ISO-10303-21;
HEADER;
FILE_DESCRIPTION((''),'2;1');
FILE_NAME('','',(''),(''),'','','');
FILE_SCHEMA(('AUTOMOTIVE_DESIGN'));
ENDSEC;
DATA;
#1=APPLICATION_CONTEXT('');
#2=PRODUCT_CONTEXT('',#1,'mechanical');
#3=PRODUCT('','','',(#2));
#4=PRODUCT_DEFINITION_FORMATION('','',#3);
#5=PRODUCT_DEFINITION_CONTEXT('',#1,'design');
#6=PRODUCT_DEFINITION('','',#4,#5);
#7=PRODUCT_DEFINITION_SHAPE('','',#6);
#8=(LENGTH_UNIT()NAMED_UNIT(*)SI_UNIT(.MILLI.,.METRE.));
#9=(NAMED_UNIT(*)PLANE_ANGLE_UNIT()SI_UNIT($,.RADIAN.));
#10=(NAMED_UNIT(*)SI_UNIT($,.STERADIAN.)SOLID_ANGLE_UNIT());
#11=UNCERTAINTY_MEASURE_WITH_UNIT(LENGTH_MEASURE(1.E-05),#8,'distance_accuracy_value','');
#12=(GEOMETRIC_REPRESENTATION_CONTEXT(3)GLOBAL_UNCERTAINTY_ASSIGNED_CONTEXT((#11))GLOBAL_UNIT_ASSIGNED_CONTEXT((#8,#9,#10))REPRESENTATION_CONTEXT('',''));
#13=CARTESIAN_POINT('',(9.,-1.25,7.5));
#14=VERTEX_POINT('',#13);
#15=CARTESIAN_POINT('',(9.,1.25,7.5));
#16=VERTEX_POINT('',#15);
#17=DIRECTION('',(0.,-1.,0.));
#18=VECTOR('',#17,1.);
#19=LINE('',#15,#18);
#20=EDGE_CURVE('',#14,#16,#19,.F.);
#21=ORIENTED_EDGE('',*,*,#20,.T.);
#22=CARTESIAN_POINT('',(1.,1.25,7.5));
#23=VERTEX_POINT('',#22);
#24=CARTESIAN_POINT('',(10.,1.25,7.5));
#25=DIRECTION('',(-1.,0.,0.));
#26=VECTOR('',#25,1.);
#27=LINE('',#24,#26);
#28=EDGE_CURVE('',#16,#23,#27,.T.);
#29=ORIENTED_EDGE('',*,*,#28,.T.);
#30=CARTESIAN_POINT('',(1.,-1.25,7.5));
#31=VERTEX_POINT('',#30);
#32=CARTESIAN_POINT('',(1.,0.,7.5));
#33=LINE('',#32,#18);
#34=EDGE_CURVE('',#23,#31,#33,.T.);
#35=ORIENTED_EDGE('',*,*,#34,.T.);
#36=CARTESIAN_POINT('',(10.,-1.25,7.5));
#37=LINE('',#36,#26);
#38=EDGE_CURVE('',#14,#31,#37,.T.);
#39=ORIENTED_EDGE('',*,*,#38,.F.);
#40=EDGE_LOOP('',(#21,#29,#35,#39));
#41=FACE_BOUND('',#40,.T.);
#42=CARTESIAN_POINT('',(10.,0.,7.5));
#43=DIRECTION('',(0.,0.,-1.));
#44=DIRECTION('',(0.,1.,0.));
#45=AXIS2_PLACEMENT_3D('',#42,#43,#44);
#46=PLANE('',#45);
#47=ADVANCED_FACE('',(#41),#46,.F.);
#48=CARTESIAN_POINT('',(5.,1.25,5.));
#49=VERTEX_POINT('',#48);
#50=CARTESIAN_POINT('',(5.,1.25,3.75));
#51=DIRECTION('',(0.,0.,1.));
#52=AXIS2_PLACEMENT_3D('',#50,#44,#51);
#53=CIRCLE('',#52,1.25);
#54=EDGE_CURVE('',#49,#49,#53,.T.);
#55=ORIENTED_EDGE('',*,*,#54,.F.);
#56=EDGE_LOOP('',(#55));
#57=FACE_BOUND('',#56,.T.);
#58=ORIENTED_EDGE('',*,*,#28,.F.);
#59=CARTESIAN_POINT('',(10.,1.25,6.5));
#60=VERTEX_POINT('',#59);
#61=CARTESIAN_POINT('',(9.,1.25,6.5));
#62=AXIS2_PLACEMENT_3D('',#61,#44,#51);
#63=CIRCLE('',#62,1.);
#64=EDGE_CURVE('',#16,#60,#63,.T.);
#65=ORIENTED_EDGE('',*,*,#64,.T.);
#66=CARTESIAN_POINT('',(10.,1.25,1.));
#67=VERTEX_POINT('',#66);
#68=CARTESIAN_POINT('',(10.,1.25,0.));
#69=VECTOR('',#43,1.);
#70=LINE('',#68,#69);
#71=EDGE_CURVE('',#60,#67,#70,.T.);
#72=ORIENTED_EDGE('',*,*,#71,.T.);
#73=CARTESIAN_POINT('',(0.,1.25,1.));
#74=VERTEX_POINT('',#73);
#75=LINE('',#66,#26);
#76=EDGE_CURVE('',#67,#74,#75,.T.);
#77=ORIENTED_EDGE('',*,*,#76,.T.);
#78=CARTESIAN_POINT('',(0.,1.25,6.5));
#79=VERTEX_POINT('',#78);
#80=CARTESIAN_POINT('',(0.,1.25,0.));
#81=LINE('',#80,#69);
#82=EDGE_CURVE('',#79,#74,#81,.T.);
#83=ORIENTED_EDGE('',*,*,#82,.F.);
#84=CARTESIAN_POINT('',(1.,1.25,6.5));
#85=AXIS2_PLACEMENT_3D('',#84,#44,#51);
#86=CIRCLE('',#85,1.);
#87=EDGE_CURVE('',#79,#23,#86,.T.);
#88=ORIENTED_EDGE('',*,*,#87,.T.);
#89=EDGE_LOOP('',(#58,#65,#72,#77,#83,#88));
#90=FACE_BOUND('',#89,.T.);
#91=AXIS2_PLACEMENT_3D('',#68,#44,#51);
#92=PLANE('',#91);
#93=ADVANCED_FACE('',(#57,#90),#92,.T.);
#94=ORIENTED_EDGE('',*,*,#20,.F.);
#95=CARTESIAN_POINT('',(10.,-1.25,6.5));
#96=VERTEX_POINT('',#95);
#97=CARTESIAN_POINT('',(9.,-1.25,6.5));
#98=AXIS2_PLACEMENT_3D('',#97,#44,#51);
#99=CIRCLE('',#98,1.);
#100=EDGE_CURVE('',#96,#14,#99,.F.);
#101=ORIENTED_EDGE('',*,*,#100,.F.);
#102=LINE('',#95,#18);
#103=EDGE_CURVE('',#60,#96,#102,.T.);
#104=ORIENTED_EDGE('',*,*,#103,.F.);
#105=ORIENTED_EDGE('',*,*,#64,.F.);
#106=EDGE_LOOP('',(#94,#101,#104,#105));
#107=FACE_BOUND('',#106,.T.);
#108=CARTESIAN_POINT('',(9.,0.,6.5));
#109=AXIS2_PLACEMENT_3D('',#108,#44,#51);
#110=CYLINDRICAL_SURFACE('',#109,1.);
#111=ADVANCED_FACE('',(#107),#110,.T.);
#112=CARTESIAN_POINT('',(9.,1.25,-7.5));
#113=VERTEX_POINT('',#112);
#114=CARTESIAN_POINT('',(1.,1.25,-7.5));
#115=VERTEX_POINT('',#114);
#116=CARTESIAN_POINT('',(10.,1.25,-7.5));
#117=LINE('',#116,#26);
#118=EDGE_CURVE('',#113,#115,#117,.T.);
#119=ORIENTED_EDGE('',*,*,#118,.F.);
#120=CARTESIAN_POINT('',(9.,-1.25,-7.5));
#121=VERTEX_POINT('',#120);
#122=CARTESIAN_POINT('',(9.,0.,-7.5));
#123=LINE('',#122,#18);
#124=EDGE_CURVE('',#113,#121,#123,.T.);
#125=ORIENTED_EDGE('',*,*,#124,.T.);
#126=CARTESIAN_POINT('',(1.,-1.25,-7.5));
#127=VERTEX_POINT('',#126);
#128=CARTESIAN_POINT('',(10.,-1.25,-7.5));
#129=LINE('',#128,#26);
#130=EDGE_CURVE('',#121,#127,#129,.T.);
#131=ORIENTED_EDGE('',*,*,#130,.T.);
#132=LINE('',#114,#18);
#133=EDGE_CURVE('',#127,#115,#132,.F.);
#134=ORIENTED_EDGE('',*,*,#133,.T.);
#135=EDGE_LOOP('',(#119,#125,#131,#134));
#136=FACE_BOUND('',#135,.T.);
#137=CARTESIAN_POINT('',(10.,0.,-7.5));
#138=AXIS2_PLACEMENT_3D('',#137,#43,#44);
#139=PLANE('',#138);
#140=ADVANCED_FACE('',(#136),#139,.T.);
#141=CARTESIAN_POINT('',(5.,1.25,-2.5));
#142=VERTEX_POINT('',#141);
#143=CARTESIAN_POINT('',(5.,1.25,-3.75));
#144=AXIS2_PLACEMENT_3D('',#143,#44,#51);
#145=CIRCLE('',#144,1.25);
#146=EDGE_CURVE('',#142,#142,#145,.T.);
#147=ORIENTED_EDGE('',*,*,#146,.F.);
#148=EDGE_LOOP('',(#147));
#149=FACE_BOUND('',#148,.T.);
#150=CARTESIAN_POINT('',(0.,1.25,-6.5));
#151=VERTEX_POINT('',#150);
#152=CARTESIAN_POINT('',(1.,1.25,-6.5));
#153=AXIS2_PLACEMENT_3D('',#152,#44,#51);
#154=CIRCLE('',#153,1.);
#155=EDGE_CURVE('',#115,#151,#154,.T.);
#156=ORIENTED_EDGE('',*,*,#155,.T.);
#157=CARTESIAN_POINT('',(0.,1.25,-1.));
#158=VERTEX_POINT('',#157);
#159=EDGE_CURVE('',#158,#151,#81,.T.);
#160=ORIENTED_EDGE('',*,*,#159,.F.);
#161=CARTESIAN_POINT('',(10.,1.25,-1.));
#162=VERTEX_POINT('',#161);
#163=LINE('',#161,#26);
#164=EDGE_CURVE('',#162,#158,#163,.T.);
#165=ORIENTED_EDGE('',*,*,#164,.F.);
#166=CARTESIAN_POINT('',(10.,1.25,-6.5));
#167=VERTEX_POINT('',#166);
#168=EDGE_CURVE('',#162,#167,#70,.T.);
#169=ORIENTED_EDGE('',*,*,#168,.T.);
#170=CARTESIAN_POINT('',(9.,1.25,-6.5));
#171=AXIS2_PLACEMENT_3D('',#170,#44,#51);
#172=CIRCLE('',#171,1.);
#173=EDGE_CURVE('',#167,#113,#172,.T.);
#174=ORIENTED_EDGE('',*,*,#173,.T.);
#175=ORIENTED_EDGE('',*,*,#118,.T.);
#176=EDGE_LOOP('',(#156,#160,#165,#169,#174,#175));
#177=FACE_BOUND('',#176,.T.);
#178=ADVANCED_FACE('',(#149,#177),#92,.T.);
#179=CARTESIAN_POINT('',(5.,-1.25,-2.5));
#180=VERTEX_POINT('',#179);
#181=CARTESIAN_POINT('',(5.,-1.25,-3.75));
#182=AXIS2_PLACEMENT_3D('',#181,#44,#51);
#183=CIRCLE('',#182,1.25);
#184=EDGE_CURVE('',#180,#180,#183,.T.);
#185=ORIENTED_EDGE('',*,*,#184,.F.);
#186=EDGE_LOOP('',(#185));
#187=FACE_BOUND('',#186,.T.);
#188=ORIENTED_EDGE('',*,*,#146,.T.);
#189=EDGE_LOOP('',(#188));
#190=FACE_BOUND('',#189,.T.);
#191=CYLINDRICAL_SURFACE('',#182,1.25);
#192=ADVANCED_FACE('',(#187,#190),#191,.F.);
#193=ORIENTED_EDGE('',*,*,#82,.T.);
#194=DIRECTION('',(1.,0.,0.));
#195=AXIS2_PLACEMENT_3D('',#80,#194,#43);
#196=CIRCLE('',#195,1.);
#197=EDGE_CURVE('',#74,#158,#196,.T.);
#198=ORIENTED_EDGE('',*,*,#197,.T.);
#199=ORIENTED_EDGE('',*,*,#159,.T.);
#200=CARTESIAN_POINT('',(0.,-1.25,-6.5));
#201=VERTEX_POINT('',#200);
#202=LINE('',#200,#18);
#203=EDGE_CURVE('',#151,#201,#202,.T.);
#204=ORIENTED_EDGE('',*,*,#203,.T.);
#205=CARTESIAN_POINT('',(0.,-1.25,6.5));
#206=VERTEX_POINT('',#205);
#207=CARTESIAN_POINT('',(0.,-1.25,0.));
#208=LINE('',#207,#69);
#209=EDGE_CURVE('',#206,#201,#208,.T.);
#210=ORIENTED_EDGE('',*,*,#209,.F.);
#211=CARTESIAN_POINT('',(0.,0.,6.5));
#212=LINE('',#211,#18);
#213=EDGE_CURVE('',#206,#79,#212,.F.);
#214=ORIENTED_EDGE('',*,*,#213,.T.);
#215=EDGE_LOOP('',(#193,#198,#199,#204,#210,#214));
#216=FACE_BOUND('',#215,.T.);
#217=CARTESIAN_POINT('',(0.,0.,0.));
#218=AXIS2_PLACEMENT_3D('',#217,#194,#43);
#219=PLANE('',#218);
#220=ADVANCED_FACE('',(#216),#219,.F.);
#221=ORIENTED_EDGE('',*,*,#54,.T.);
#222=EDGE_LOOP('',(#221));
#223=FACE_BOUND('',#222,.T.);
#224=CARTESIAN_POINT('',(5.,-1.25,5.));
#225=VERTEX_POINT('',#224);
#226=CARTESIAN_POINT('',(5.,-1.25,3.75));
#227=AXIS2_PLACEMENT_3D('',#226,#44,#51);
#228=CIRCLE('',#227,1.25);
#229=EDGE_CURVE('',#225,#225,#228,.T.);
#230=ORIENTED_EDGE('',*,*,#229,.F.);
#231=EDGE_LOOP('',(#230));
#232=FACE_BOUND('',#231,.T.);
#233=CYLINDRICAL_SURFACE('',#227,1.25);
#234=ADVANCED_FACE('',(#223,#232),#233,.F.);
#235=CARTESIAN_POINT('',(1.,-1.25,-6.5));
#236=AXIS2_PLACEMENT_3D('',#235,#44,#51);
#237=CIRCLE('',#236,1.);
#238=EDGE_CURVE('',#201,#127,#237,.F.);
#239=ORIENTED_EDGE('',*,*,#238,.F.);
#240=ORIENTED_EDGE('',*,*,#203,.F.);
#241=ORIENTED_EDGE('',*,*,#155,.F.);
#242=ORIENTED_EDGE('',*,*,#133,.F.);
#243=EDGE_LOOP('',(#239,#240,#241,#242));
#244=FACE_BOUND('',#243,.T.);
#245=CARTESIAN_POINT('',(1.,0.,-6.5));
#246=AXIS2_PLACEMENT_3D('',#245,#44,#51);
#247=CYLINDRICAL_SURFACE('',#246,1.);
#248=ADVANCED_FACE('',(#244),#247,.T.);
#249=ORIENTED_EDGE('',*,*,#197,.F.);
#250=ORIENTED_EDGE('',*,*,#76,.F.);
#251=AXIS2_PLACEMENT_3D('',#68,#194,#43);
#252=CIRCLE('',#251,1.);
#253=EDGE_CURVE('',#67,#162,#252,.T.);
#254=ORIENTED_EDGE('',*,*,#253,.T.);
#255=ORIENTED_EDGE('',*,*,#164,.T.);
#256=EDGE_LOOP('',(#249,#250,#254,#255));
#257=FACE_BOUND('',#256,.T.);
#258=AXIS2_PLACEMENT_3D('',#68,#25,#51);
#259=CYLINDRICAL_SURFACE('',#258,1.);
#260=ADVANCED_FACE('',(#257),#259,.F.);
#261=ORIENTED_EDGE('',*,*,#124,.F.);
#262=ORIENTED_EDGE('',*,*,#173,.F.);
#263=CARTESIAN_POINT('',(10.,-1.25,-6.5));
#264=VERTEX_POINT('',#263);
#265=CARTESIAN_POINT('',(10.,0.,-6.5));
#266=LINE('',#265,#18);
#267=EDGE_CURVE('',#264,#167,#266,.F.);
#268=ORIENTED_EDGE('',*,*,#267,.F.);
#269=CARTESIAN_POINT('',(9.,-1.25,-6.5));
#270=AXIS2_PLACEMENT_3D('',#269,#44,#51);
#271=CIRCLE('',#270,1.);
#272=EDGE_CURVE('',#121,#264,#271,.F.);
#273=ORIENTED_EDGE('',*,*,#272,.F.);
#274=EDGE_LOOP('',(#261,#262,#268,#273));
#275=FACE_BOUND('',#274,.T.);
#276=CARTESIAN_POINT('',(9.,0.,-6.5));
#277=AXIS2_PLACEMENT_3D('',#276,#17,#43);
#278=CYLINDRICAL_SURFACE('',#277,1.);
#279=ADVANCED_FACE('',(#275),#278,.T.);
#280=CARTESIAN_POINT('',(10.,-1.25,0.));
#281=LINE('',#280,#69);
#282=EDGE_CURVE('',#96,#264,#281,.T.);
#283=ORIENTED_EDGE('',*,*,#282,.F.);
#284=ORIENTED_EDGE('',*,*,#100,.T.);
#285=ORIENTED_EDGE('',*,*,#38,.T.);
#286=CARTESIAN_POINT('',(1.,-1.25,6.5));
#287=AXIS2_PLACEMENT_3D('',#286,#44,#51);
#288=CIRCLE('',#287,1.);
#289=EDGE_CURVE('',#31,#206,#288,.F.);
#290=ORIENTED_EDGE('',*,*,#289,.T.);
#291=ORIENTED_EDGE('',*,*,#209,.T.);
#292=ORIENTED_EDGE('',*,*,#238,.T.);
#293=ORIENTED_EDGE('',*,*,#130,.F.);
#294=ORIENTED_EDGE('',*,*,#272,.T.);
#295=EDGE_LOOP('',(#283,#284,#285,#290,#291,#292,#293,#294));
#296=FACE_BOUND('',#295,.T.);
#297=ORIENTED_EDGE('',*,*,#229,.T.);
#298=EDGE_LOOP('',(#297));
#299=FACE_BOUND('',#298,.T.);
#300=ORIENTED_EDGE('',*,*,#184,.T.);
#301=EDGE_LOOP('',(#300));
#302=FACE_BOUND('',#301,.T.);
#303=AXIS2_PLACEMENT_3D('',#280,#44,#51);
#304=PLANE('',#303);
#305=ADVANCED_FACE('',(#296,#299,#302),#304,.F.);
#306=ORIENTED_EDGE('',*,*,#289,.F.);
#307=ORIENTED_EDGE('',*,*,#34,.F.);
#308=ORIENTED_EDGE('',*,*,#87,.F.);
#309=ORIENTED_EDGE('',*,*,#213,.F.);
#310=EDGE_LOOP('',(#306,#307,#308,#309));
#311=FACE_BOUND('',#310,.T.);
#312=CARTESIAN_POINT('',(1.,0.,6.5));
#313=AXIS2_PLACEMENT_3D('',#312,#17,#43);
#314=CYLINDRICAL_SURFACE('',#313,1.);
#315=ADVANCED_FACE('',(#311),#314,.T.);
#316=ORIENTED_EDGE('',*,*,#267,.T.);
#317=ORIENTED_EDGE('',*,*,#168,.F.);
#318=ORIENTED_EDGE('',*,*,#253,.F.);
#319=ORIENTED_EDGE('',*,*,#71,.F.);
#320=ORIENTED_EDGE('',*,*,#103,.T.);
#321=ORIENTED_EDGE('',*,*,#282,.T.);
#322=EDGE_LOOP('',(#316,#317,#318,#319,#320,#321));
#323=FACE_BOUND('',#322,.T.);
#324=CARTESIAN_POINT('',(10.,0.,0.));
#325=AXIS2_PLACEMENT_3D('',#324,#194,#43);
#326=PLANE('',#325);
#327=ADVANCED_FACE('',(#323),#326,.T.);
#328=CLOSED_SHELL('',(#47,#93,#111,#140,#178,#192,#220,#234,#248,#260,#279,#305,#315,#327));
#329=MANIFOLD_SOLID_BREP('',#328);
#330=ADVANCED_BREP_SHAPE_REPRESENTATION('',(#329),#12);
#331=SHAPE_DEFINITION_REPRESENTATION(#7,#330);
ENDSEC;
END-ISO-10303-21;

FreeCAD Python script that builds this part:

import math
import FreeCAD as App
import Part
import Sketcher
from FreeCAD import Vector


def edges_at(feature, points):
    """Names of the edges that pass closest to the given points."""
    edges = feature.Shape.Edges
    near = lambda p: min(range(len(edges)), key=lambda i: edges[i].distToShape(Part.Vertex(*p))[0])
    return sorted({f"Edge{near(p) + 1}" for p in points})

doc = App.newDocument("Part")
body = doc.addObject("PartDesign::Body", "Body")

sketch1 = body.newObject("Sketcher::SketchObject", "Sketch")
sketch1.AttachmentSupport = (doc.getObject("YZ_Plane"), [""])
sketch1.MapMode = "FlatFace"
sketch1.addGeometry([
    Part.LineSegment(Vector(1.2, -7.5, 0), Vector(1.2, -1, 0)),
    Part.ArcOfCircle(Part.Circle(Vector(1.2, 0, 0), Vector(0, 0, 1), 1), math.radians(90), math.radians(270)),
    Part.LineSegment(Vector(1.2, 1, 0), Vector(1.2, 7.5, 0)),
    Part.LineSegment(Vector(1.2, 7.5, 0), Vector(-1.2, 7.5, 0)),
    Part.LineSegment(Vector(-1.2, 7.5, 0), Vector(-1.2, -7.5, 0)),
    Part.LineSegment(Vector(-1.2, -7.5, 0), Vector(1.2, -7.5, 0)),
], False)
sketch1.addConstraint([
    Sketcher.Constraint("Coincident", 0, 2, 1, 2),
    Sketcher.Constraint("Coincident", 1, 1, 2, 1),
    Sketcher.Constraint("Coincident", 2, 2, 3, 1),
    Sketcher.Constraint("Coincident", 3, 2, 4, 1),
    Sketcher.Constraint("Coincident", 4, 2, 5, 1),
    Sketcher.Constraint("Coincident", 5, 2, 0, 1),
    Sketcher.Constraint("Vertical", 0),
    Sketcher.Constraint("Vertical", 2),
    Sketcher.Constraint("Horizontal", 3),
    Sketcher.Constraint("Vertical", 4),
    Sketcher.Constraint("Horizontal", 5),
    Sketcher.Constraint("Symmetric", 2, 2, 4, 2, -1, 1),
    Sketcher.Constraint("Symmetric", 0, 2, 1, 1, -1),
    Sketcher.Constraint("Vertical", 1, 3, 0, 2),
    Sketcher.Constraint("Radius", 1, 1.0),
    Sketcher.Constraint("DistanceY", 4, 2, 4, 1, 15.0),
    Sketcher.Constraint("DistanceX", 3, 2, 3, 1, 2.5),
])
pad1 = body.newObject("PartDesign::Pad", "Pad")
pad1.Profile = sketch1
pad1.Length = 10

sketch2 = body.newObject("Sketcher::SketchObject", "Sketch001")
sketch2.AttachmentSupport = (doc.getObject("XZ_Plane"), [""])
sketch2.MapMode = "FlatFace"
sketch2.AttachmentOffset = App.Placement(Vector(0, 0, -1.25), App.Rotation())
sketch2.addGeometry([
    Part.Circle(Vector(5, -3.8, 0), Vector(0, 0, 1), 1.2),
    Part.Circle(Vector(5, 3.8, 0), Vector(0, 0, 1), 1.2),
], False)
sketch2.addConstraint([
    Sketcher.Constraint("Equal", 0, 1),
    Sketcher.Constraint("Symmetric", 0, 3, 1, 3, -1),
    Sketcher.Constraint("Diameter", 0, 2.5),
    Sketcher.Constraint("DistanceX", -1, 1, 0, 3, 5.0),
    Sketcher.Constraint("DistanceY", 0, 3, 1, 3, 7.5),
])
pocket1 = body.newObject("PartDesign::Pocket", "Pocket")
pocket1.Profile = sketch2
pocket1.Type = "ThroughAll"
pocket1.Reversed = True
doc.recompute()

fillet = body.newObject("PartDesign::Fillet", "Fillet")
fillet.Base = (pocket1, edges_at(pocket1, [
    (10, 0, 7.5),
    (10, 0, -7.5),
    (0, 0, -7.5),
    (0, 0, 7.5),
]))
fillet.Radius = 1

doc.recompute()
